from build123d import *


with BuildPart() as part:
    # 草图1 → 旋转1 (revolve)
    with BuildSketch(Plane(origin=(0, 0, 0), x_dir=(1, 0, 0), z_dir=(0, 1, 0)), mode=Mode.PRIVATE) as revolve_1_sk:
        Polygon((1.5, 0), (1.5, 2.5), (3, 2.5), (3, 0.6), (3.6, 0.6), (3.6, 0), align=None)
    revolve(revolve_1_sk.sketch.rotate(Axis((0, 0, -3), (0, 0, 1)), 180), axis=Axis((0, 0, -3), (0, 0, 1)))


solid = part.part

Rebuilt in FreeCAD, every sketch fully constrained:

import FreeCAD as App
import Part
import Sketcher
Q = App.Units.Quantity


def add_polygon(sketch, points):
    """Adds a closed chain of lines whose ends are joined by coincident constraints."""
    first, n = sketch.GeometryCount, len(points)
    for a, b in zip(points, points[1:] + points[:1]):
        sketch.addGeometry(Part.LineSegment(App.Vector(*a, 0), App.Vector(*b, 0)), False)
    for i in range(n):
        sketch.addConstraint(Sketcher.Constraint("Coincident", first + i, 2, first + (i + 1) % n, 1))

doc = App.newDocument("Part")
body = doc.addObject("PartDesign::Body", "Body")

# Sketch on XZ plane
sketch1 = doc.addObject("Sketcher::SketchObject", "Sketch")
body.addObject(sketch1)
sketch1.AttachmentSupport = (doc.XZ_Plane, [""])
sketch1.MapMode = "FlatFace"
add_polygon(sketch1, [(1.5, -2.5), (1.5, 0), (3.6, 0), (3.6, -0.6), (3, -0.6), (3, -2.5)])  # lines 0-5
sketch1.addConstraint([
    Sketcher.Constraint("Vertical", 0),
    Sketcher.Constraint("Horizontal", 1),
    Sketcher.Constraint("Vertical", 2),
    Sketcher.Constraint("Horizontal", 3),
    Sketcher.Constraint("Vertical", 4),
    Sketcher.Constraint("Horizontal", 5),
    Sketcher.Constraint("PointOnObject", 0, 2, -1),
    Sketcher.Constraint("Equal", 3, 2),
    Sketcher.Constraint("DistanceX", 1, 1, 1, 2, Q("2.1 mm")),
    Sketcher.Constraint("DistanceX", 3, 2, 3, 1, Q("0.6 mm")),
    Sketcher.Constraint("DistanceY", 0, 1, 0, 2, Q("2.5 mm")),
    Sketcher.Constraint("DistanceX", -1, 1, 3, 2, Q("3 mm")),
])
revolution = doc.addObject("PartDesign::Revolution", "Revolution")
body.addObject(revolution)
revolution.Profile = sketch1
revolution.ReferenceAxis = (sketch1, ["V_Axis"])
revolution.Angle = 360

doc.recompute()
